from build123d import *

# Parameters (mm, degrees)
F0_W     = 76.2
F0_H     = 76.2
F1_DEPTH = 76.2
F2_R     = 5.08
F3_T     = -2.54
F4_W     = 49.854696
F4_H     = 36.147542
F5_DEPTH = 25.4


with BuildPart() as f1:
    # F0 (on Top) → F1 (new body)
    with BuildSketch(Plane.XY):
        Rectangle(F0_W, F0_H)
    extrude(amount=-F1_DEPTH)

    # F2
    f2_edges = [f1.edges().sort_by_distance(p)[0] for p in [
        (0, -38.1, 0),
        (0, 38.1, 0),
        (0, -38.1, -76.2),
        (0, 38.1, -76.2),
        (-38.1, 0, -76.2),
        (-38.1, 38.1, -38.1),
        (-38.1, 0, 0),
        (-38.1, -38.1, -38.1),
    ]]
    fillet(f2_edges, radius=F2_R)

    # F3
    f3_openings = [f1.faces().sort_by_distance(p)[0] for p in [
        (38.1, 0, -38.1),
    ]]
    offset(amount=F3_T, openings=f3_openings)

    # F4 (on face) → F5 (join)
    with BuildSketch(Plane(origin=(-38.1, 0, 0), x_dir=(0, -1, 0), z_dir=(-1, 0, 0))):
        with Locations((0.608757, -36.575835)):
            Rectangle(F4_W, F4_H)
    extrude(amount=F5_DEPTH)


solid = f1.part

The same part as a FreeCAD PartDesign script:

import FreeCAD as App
import Part
import Sketcher
Q = App.Units.Quantity


def edges_at(feature, points):
    """Names of the edges that pass closest to the given points."""
    edges = feature.Shape.Edges
    near = lambda p: min(range(len(edges)), key=lambda i: edges[i].distToShape(Part.Vertex(*p))[0])
    return sorted({f"Edge{near(p) + 1}" for p in points})


def faces_at(feature, points):
    """Names of the faces that lie closest to the given points."""
    faces = feature.Shape.Faces
    near = lambda p: min(range(len(faces)), key=lambda i: faces[i].distToShape(Part.Vertex(*p))[0])
    return sorted({f"Face{near(p) + 1}" for p in points})

doc = App.newDocument("Part")
body = doc.addObject("PartDesign::Body", "Body")

# Sketch on XY plane
sketch1 = body.newObject("Sketcher::SketchObject", "Sketch")
sketch1.AttachmentSupport = (doc.getObject("XY_Plane"), [""])
sketch1.MapMode = "FlatFace"
sketch1.addGeometry(Part.LineSegment(App.Vector(-38.1, 38.1, 0), App.Vector(-38.1, -38.1, 0)), False)
sketch1.addGeometry(Part.LineSegment(App.Vector(-38.1, -38.1, 0), App.Vector(38.1, -38.1, 0)), False)
sketch1.addGeometry(Part.LineSegment(App.Vector(38.1, -38.1, 0), App.Vector(38.1, 38.1, 0)), False)
sketch1.addGeometry(Part.LineSegment(App.Vector(38.1, 38.1, 0), App.Vector(-38.1, 38.1, 0)), False)
sketch1.addConstraint(Sketcher.Constraint("Coincident", 0, 2, 1, 1))
sketch1.addConstraint(Sketcher.Constraint("Coincident", 1, 2, 2, 1))
sketch1.addConstraint(Sketcher.Constraint("Coincident", 2, 2, 3, 1))
sketch1.addConstraint(Sketcher.Constraint("Coincident", 3, 2, 0, 1))
sketch1.addConstraint(Sketcher.Constraint("Vertical", 0))
sketch1.addConstraint(Sketcher.Constraint("Horizontal", 1))
sketch1.addConstraint(Sketcher.Constraint("Vertical", 2))
sketch1.addConstraint(Sketcher.Constraint("Horizontal", 3))
sketch1.addConstraint(Sketcher.Constraint("Symmetric", 0, 2, 2, 2, -1, 1))
sketch1.addConstraint(Sketcher.Constraint("Equal", 3, 0))
sketch1.addConstraint(Sketcher.Constraint("DistanceX", 1, 1, 1, 2, Q("3 in")))
pad1 = body.newObject("PartDesign::Pad", "Pad")
pad1.Profile = sketch1
pad1.Length = Q("3 in")
pad1.Reversed = True
doc.recompute()

fillet = body.newObject("PartDesign::Fillet", "Fillet")
fillet.Base = (pad1, edges_at(pad1, [
    (0, -38.1, 0),
    (0, 38.1, 0),
    (0, -38.1, -76.2),
    (0, 38.1, -76.2),
    (-38.1, 0, -76.2),
    (-38.1, 38.1, -38.1),
    (-38.1, 0, 0),
    (-38.1, -38.1, -38.1),
]))
fillet.Radius = Q("0.2 in")
doc.recompute()

thickness = body.newObject("PartDesign::Thickness", "Thickness")
thickness.Base = (fillet, faces_at(fillet, [(38.1, 0, -38.1)]))
thickness.Value = Q("0.1 in")
thickness.Reversed = True
thickness.Join = "Arc"

# Sketch on YZ plane
sketch2 = body.newObject("Sketcher::SketchObject", "Sketch001")
sketch2.AttachmentSupport = (doc.getObject("YZ_Plane"), [""])
sketch2.MapMode = "FlatFace"
sketch2.AttachmentOffset = App.Placement(App.Vector(0, 0, -1.5 * 25.4), App.Rotation())
sketch2.addGeometry(Part.LineSegment(App.Vector(24.318591, -18.502064, 0), App.Vector(24.318591, -54.649606, 0)), False)
sketch2.addGeometry(Part.LineSegment(App.Vector(24.318591, -54.649606, 0), App.Vector(-25.536105, -54.649606, 0)), False)
sketch2.addGeometry(Part.LineSegment(App.Vector(-25.536105, -54.649606, 0), App.Vector(-25.536105, -18.502064, 0)), False)
sketch2.addGeometry(Part.LineSegment(App.Vector(-25.536105, -18.502064, 0), App.Vector(24.318591, -18.502064, 0)), False)
sketch2.addConstraint(Sketcher.Constraint("Coincident", 0, 2, 1, 1))
sketch2.addConstraint(Sketcher.Constraint("Coincident", 1, 2, 2, 1))
sketch2.addConstraint(Sketcher.Constraint("Coincident", 2, 2, 3, 1))
sketch2.addConstraint(Sketcher.Constraint("Coincident", 3, 2, 0, 1))
sketch2.addConstraint(Sketcher.Constraint("Vertical", 0))
sketch2.addConstraint(Sketcher.Constraint("Horizontal", 1))
sketch2.addConstraint(Sketcher.Constraint("Vertical", 2))
sketch2.addConstraint(Sketcher.Constraint("Horizontal", 3))
sketch2.addConstraint(Sketcher.Constraint("DistanceX", 1, 2, 1, 1, 49.854696))
sketch2.addConstraint(Sketcher.Constraint("DistanceY", 0, 2, 0, 1, 36.147542))
sketch2.addConstraint(Sketcher.Constraint("DistanceX", -1, 1, 0, 2, 24.318591))
sketch2.addConstraint(Sketcher.Constraint("DistanceY", 0, 2, -1, 1, 54.649606))
pad2 = body.newObject("PartDesign::Pad", "Pad001")
pad2.Profile = sketch2
pad2.Length = Q("1 in")
pad2.Reversed = True

doc.recompute()
